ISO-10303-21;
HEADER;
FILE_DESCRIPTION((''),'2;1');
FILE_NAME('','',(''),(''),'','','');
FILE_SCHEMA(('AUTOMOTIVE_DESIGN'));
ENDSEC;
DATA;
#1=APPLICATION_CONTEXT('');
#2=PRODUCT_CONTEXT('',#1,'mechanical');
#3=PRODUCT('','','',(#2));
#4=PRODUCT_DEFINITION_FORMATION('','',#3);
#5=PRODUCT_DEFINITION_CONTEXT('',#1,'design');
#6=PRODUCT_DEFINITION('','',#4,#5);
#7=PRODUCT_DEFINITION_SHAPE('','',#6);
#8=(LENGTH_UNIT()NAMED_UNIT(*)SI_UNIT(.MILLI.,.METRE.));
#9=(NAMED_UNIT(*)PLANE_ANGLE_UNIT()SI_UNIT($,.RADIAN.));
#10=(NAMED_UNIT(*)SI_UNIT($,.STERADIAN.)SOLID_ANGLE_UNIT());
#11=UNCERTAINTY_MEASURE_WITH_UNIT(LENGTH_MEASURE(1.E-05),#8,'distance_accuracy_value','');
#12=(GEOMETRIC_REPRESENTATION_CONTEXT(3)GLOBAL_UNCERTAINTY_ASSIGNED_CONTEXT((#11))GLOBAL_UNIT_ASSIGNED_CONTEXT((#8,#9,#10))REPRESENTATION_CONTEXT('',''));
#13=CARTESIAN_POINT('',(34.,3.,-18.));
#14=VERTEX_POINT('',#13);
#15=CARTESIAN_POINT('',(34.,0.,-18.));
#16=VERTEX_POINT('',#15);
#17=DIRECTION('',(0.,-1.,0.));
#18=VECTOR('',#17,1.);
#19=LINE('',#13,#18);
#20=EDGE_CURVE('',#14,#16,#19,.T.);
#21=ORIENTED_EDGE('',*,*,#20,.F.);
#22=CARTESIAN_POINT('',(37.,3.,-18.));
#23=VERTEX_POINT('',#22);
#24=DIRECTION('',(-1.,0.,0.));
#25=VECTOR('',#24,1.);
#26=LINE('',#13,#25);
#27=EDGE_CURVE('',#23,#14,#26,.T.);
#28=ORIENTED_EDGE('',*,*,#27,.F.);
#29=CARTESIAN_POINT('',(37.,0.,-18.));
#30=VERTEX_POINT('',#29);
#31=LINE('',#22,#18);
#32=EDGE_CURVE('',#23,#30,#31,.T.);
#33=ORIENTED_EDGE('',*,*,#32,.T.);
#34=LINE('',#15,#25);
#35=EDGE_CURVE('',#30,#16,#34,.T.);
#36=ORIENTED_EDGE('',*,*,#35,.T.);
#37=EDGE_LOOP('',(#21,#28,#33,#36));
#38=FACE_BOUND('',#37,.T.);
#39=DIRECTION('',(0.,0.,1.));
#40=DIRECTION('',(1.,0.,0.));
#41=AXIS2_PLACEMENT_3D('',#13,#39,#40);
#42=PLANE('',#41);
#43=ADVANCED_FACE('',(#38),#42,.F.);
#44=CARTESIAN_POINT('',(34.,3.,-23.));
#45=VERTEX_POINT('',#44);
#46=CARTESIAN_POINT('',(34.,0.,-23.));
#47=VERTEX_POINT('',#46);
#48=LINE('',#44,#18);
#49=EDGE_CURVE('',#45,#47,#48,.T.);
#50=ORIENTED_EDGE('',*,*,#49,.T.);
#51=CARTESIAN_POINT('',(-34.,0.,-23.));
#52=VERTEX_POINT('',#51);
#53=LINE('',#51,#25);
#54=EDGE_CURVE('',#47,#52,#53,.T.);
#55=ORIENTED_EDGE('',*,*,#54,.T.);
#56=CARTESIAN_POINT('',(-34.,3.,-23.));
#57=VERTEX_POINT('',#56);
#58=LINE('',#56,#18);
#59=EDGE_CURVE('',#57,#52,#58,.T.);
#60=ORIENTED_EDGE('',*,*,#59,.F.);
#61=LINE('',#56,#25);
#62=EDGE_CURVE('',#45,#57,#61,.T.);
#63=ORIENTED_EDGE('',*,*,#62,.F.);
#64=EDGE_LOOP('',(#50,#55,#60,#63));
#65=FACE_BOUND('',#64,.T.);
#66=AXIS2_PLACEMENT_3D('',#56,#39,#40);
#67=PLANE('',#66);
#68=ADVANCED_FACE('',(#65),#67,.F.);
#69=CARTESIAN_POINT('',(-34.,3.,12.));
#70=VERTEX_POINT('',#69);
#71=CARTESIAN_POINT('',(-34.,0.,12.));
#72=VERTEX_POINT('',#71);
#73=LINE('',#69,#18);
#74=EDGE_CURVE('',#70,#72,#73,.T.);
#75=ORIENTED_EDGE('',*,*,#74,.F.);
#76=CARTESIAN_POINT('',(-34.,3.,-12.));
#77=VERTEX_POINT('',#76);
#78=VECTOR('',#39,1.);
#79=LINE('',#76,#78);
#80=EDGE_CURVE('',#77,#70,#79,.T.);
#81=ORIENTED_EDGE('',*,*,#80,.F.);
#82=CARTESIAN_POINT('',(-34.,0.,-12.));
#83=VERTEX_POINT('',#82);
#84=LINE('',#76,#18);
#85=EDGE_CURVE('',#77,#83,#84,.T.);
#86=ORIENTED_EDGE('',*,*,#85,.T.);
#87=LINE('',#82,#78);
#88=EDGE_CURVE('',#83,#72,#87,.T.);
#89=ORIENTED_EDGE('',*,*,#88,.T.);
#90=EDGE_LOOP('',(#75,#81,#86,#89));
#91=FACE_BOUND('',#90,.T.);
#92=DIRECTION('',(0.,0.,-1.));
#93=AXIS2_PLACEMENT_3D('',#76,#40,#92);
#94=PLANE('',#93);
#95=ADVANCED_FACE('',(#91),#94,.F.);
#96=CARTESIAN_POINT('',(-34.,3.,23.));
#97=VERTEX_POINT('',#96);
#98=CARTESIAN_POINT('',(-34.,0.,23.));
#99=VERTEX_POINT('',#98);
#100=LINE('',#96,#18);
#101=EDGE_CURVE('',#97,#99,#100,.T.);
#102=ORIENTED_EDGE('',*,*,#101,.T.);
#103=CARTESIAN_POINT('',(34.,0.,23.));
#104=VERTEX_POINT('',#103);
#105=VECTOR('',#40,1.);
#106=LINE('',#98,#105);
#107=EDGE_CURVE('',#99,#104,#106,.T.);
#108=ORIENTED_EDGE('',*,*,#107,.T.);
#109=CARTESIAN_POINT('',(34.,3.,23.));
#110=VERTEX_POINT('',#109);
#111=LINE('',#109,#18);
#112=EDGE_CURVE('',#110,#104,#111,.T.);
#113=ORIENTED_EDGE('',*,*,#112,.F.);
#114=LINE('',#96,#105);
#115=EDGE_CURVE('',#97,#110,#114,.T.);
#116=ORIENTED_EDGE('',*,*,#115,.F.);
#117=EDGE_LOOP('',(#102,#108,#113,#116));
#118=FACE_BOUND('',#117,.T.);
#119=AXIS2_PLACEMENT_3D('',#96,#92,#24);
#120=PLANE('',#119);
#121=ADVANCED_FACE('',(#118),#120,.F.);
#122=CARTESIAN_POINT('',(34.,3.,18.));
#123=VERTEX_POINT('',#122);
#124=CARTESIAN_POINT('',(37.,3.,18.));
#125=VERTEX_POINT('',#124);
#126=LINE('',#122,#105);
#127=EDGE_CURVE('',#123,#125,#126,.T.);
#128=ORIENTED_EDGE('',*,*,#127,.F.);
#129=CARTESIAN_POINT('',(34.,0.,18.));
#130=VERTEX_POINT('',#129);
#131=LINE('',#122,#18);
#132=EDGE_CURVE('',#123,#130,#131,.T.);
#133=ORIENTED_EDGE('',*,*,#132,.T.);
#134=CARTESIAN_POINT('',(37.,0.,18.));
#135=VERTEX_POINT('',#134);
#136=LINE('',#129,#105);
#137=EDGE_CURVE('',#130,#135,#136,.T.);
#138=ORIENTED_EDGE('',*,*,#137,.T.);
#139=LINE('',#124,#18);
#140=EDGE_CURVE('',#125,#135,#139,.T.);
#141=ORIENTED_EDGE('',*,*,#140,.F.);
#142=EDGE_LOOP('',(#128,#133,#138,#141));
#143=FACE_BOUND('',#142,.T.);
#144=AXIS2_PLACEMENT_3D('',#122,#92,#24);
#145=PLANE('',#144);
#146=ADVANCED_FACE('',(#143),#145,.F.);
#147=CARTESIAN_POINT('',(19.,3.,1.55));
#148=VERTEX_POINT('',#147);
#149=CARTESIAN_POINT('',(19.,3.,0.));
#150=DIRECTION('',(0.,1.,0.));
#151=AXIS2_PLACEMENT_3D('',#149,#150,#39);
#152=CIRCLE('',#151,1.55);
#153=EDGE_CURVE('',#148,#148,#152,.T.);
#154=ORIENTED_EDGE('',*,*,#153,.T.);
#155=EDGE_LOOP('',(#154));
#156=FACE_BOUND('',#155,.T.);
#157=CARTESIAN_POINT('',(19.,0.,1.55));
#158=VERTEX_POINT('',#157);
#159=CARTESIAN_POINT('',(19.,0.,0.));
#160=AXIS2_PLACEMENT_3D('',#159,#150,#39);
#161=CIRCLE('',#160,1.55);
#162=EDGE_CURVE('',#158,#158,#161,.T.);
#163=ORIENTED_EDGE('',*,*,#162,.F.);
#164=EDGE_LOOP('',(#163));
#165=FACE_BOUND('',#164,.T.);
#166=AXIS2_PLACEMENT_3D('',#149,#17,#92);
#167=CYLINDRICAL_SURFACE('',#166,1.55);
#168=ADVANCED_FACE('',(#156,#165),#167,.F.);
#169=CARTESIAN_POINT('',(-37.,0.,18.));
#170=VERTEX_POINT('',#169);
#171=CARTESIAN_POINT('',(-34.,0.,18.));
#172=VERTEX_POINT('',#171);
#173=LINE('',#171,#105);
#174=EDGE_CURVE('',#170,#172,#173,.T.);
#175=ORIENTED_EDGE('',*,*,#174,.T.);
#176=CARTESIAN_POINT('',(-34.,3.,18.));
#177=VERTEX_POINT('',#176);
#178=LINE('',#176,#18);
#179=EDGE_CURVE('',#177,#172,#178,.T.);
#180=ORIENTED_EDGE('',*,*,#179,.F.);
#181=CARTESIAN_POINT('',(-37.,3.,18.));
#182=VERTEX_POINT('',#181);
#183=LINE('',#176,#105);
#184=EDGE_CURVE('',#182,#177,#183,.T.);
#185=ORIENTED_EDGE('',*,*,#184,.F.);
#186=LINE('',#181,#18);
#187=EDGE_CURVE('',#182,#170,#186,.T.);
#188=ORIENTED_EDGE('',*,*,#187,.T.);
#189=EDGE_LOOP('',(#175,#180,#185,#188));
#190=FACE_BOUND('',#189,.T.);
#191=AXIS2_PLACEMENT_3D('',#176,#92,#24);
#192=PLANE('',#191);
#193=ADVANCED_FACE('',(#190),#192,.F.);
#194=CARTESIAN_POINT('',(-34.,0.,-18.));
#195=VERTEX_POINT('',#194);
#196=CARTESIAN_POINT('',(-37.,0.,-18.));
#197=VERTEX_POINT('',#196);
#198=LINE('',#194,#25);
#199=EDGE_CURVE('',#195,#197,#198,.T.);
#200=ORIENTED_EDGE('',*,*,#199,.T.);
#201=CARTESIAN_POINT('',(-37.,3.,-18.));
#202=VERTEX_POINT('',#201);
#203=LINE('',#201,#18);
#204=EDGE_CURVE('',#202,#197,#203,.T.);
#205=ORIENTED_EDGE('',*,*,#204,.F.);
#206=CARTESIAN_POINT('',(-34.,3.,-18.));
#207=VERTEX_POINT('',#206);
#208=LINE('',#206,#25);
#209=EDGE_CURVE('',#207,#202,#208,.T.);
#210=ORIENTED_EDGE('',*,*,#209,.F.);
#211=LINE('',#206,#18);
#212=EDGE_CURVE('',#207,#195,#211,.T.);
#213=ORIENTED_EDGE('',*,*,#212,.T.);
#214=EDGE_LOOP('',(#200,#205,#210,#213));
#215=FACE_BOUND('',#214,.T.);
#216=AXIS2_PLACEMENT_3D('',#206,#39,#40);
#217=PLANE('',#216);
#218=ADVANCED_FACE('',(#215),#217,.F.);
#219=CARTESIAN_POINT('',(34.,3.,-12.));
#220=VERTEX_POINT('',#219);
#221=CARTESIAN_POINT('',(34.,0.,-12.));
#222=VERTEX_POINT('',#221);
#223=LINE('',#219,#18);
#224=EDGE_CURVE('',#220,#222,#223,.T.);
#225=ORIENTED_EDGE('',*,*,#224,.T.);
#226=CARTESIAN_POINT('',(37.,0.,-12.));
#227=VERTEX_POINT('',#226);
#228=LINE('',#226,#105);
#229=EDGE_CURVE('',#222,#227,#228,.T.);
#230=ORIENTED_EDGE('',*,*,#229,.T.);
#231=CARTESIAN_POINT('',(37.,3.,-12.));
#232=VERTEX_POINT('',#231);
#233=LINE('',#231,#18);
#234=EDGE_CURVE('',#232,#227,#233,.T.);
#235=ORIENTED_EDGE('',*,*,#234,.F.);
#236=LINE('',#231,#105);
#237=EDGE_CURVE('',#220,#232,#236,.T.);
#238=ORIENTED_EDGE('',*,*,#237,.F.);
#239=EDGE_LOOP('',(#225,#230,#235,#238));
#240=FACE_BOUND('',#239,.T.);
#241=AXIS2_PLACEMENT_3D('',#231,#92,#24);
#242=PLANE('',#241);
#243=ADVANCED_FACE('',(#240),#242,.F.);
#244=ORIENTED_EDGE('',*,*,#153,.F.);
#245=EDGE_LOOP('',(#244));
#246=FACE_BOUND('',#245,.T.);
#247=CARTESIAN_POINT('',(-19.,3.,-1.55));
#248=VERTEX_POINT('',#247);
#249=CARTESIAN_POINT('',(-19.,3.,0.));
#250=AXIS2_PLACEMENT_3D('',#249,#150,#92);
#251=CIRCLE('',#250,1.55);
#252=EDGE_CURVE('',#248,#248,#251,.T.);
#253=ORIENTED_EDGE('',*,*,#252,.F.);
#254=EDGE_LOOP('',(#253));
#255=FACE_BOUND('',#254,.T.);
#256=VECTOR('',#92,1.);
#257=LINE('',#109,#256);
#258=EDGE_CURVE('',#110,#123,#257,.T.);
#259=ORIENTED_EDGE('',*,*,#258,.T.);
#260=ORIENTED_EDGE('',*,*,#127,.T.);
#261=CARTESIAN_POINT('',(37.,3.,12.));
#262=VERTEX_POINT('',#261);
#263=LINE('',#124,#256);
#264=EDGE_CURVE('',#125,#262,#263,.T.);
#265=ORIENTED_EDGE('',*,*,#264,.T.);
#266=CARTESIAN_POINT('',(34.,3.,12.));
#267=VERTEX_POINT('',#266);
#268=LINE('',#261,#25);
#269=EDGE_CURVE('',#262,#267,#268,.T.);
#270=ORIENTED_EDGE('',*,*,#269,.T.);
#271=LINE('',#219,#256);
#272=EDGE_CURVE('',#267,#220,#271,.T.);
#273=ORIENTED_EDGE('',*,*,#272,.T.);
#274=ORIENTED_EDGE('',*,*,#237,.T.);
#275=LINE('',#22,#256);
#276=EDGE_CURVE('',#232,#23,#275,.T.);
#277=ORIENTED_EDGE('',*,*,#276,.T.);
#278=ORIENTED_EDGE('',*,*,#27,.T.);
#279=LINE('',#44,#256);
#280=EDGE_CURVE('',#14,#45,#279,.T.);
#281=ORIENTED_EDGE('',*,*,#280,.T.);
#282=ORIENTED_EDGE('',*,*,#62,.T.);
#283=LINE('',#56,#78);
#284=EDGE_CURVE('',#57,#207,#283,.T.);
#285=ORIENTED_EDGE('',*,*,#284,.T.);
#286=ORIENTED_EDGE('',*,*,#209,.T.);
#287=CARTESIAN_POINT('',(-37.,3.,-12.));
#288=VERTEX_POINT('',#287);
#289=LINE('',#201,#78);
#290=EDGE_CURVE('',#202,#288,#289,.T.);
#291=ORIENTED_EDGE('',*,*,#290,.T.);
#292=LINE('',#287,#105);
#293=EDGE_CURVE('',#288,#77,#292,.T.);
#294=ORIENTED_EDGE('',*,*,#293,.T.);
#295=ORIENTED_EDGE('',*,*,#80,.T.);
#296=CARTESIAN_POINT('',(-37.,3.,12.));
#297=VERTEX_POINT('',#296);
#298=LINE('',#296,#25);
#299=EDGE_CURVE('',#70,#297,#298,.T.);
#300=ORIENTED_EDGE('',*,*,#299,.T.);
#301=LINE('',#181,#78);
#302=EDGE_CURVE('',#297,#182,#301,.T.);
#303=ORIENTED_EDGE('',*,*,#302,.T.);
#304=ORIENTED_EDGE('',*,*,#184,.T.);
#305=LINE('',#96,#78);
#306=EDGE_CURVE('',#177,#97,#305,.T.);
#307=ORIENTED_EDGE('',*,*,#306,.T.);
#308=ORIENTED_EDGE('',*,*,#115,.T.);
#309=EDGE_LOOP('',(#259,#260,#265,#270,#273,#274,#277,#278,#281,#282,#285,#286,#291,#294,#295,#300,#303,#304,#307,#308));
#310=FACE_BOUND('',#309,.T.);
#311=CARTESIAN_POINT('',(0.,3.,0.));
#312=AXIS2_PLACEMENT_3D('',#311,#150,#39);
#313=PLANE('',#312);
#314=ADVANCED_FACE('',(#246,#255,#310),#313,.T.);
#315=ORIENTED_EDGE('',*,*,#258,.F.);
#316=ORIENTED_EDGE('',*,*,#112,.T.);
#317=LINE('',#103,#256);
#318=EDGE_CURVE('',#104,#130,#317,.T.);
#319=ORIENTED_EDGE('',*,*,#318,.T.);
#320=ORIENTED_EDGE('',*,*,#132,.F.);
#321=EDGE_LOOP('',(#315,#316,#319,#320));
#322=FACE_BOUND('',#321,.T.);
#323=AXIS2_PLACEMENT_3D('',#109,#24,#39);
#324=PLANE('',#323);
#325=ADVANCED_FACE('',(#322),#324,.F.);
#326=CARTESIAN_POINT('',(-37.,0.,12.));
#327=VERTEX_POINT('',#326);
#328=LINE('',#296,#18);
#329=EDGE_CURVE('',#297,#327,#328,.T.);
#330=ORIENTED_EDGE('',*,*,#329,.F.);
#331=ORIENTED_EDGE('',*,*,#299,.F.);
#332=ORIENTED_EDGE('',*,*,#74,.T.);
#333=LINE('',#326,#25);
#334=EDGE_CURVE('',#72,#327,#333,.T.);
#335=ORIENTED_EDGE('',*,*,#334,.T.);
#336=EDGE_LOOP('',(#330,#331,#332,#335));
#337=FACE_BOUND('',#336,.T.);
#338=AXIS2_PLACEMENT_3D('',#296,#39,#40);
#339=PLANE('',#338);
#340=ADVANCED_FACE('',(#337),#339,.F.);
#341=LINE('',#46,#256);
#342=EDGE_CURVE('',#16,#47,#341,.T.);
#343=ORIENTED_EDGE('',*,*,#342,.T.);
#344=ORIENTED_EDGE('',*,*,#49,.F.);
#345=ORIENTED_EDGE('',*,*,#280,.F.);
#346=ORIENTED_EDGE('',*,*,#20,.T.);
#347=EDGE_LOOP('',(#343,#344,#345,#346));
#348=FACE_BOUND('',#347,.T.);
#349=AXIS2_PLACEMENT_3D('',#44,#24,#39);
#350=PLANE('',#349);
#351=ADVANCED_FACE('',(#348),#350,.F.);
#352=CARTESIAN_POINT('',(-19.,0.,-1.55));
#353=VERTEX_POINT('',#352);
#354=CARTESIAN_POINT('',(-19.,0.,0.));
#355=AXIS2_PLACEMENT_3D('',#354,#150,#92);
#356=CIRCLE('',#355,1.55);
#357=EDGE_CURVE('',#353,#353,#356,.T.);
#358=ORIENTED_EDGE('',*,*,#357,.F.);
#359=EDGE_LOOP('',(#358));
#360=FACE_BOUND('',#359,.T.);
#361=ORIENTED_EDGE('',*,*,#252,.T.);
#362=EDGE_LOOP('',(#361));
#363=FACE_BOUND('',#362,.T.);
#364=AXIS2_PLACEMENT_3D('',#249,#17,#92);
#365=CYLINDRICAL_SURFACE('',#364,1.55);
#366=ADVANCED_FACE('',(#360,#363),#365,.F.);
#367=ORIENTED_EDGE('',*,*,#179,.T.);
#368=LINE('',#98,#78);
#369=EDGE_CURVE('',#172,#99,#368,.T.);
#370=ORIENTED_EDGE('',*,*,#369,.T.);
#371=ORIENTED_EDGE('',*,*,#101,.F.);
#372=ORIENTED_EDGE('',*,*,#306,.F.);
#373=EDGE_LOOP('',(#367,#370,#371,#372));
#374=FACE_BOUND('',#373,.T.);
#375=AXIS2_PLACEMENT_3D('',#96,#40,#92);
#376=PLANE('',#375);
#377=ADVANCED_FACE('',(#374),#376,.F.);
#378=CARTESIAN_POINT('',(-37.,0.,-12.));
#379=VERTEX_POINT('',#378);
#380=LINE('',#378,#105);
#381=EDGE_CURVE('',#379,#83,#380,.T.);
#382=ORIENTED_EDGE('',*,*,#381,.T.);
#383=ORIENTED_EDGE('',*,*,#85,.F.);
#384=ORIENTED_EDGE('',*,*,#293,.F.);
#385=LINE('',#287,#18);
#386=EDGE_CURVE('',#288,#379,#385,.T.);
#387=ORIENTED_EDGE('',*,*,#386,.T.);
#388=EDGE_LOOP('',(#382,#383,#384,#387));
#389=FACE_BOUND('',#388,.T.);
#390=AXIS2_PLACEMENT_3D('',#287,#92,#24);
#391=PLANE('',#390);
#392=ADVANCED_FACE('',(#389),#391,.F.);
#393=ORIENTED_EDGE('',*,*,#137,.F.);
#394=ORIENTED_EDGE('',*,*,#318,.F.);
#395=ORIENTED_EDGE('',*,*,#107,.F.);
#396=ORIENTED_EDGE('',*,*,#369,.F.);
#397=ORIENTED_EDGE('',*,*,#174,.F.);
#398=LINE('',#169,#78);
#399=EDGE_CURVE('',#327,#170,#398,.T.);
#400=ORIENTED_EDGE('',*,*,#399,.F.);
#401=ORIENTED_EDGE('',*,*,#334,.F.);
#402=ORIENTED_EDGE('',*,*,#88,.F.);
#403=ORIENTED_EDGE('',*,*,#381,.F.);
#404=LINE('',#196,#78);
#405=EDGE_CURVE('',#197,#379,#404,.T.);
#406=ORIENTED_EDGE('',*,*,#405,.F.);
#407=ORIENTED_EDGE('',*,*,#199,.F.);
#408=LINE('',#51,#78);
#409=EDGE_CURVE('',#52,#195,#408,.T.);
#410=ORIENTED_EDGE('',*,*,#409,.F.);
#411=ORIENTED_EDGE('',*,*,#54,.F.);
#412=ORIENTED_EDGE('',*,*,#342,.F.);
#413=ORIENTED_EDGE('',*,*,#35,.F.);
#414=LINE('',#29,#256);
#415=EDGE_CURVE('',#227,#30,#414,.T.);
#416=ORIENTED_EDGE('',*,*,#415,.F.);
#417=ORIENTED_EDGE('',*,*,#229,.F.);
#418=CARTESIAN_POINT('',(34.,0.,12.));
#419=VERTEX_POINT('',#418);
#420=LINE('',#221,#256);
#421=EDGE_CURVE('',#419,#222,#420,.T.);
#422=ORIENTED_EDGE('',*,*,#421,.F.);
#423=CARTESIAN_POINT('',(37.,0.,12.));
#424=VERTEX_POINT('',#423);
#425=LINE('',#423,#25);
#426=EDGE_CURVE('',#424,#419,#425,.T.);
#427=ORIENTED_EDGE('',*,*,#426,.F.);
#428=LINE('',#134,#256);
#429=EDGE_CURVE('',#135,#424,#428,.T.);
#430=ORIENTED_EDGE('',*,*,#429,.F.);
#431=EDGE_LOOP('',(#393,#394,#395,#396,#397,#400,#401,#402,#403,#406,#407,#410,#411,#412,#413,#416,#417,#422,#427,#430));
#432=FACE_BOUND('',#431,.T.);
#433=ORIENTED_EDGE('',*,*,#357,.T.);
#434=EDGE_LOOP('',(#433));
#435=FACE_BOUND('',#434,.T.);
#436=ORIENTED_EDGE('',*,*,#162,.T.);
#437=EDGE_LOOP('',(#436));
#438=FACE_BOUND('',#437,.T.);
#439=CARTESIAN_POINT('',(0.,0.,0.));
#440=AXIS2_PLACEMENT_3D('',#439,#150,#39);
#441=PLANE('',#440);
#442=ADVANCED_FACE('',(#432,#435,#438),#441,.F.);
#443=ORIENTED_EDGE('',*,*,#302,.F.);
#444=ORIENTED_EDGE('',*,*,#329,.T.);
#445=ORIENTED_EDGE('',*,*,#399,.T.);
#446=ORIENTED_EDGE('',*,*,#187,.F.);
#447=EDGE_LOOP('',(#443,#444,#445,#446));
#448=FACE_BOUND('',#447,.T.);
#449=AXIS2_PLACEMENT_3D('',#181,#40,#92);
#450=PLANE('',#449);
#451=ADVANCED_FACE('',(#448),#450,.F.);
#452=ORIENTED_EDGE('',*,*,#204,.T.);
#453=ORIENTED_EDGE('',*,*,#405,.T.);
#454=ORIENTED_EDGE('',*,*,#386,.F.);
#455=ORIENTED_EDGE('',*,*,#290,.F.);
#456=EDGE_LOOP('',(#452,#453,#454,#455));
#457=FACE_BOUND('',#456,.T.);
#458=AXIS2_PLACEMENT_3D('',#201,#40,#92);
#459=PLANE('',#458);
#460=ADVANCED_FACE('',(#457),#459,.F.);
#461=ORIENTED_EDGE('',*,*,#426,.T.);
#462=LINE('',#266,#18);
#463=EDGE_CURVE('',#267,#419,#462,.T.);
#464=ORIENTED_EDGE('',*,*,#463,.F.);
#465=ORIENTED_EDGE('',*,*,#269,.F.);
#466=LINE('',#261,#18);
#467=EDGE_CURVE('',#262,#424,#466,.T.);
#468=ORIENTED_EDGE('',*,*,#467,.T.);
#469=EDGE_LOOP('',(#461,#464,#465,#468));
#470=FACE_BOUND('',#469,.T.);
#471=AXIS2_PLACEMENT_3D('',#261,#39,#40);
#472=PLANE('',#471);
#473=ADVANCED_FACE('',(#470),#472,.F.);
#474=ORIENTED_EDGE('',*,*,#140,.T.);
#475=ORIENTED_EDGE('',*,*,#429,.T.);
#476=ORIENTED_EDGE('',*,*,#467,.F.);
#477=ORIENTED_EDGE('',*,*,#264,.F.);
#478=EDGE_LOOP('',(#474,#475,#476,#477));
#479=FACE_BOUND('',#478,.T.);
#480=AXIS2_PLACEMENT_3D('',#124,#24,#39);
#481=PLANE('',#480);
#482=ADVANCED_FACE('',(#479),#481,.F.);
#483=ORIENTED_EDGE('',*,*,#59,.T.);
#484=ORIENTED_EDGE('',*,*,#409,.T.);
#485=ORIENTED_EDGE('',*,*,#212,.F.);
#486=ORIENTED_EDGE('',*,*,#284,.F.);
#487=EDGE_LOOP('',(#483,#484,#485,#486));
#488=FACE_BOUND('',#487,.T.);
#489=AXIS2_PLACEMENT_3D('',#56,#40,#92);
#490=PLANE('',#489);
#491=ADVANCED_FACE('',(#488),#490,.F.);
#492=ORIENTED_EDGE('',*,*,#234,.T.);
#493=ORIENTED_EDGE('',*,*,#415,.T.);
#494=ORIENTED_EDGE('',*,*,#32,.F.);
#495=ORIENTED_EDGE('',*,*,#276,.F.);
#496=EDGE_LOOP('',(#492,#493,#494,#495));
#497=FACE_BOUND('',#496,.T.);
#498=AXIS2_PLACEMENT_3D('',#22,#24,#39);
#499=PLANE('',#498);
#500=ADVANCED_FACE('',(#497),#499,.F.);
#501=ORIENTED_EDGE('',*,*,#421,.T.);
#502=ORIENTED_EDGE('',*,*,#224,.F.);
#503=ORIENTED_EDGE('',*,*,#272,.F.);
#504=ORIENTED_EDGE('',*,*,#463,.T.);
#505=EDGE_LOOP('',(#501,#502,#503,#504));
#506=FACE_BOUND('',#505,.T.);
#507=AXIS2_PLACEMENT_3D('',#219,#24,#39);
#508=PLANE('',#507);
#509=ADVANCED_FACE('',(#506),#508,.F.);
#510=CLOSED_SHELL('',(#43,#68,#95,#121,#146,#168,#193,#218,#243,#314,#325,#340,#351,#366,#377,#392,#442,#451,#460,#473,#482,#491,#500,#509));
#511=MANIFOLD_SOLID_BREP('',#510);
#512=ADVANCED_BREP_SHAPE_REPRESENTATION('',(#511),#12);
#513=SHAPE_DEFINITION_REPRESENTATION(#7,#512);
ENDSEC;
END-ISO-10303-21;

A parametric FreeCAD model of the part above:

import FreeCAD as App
import Part
import Sketcher

V = App.Vector
Q = App.Units.Quantity


def add_polygon(sketch, points):
    """Adds a closed chain of lines whose ends are joined by coincident constraints."""
    first, n = sketch.GeometryCount, len(points)
    for a, b in zip(points, points[1:] + points[:1]):
        sketch.addGeometry(Part.LineSegment(App.Vector(*a, 0), App.Vector(*b, 0)), False)
    for i in range(n):
        sketch.addConstraint(Sketcher.Constraint("Coincident", first + i, 2, first + (i + 1) % n, 1))

doc = App.newDocument("Part")
body = doc.addObject("PartDesign::Body", "Body")

sketch1 = body.newObject("Sketcher::SketchObject", "Sketch")
sketch1.AttachmentSupport = (doc.getObject("XZ_Plane"), [""])
sketch1.MapMode = "FlatFace"
add_polygon(sketch1, [(34, -23), (-34, -23), (-34, -18), (-37, -18), (-37, -12), (-34, -12), (-34, 12), (-37, 12), (-37, 18), (-34, 18), (-34, 23), (34, 23), (34, 18), (37, 18), (37, 12), (34, 12), (34, -12), (37, -12), (37, -18), (34, -18)])
sketch1.addGeometry(Part.Circle(V(19, 0, 0), V(0, 0, 1), 1.6), False)
sketch1.addGeometry(Part.Circle(V(-19, 0, 0), V(0, 0, 1), 1.6), False)
sketch1.addConstraint(Sketcher.Constraint("Horizontal", 0))
sketch1.addConstraint(Sketcher.Constraint("Vertical", 1))
sketch1.addConstraint(Sketcher.Constraint("Horizontal", 2))
sketch1.addConstraint(Sketcher.Constraint("Vertical", 3))
sketch1.addConstraint(Sketcher.Constraint("Horizontal", 4))
sketch1.addConstraint(Sketcher.Constraint("Vertical", 5))
sketch1.addConstraint(Sketcher.Constraint("Horizontal", 6))
sketch1.addConstraint(Sketcher.Constraint("Vertical", 7))
sketch1.addConstraint(Sketcher.Constraint("Horizontal", 8))
sketch1.addConstraint(Sketcher.Constraint("Vertical", 9))
sketch1.addConstraint(Sketcher.Constraint("Horizontal", 10))
sketch1.addConstraint(Sketcher.Constraint("Vertical", 11))
sketch1.addConstraint(Sketcher.Constraint("Horizontal", 12))
sketch1.addConstraint(Sketcher.Constraint("Vertical", 13))
sketch1.addConstraint(Sketcher.Constraint("Horizontal", 14))
sketch1.addConstraint(Sketcher.Constraint("Vertical", 15))
sketch1.addConstraint(Sketcher.Constraint("Horizontal", 16))
sketch1.addConstraint(Sketcher.Constraint("Vertical", 17))
sketch1.addConstraint(Sketcher.Constraint("Horizontal", 18))
sketch1.addConstraint(Sketcher.Constraint("Vertical", 19))
sketch1.addConstraint(Sketcher.Constraint("Equal", 20, 21))
sketch1.addConstraint(Sketcher.Constraint("Symmetric", 20, 3, 21, 3, -1, 1))
sketch1.addConstraint(Sketcher.Constraint("Symmetric", 0, 2, 10, 2, -1, 1))
sketch1.addConstraint(Sketcher.Constraint("Symmetric", 2, 2, 12, 2, -1, 1))
sketch1.addConstraint(Sketcher.Constraint("Symmetric", 4, 2, 14, 2, -1, 1))
sketch1.addConstraint(Sketcher.Constraint("Symmetric", 6, 2, 16, 2, -1, 1))
sketch1.addConstraint(Sketcher.Constraint("Symmetric", 8, 2, 18, 2, -1, 1))
sketch1.addConstraint(Sketcher.Constraint("Symmetric", 8, 2, 11, 2, -2))
sketch1.addConstraint(Sketcher.Constraint("Symmetric", 6, 2, 13, 2, -2))
sketch1.addConstraint(Sketcher.Constraint("PointOnObject", 20, 3, -1))
sketch1.addConstraint(Sketcher.Constraint("Vertical", 1, 2, 4, 2))
sketch1.addConstraint(Sketcher.Constraint("Diameter", 20, Q("3.1 mm")))
sketch1.addConstraint(Sketcher.Constraint("DistanceX", 0, 2, 0, 1, Q("68 mm")))
sketch1.addConstraint(Sketcher.Constraint("DistanceX", 2, 2, 2, 1, Q("3 mm")))
sketch1.addConstraint(Sketcher.Constraint("DistanceY", 1, 1, 1, 2, Q("5 mm")))
sketch1.addConstraint(Sketcher.Constraint("DistanceY", 3, 1, 3, 2, Q("6 mm")))
sketch1.addConstraint(Sketcher.Constraint("DistanceY", 5, 1, 5, 2, Q("24 mm")))
sketch1.addConstraint(Sketcher.Constraint("DistanceX", -1, 1, 20, 3, Q("19 mm")))
pad1 = body.newObject("PartDesign::Pad", "Pad")
pad1.Profile = sketch1
pad1.Length = 3
pad1.Reversed = True

doc.recompute()
